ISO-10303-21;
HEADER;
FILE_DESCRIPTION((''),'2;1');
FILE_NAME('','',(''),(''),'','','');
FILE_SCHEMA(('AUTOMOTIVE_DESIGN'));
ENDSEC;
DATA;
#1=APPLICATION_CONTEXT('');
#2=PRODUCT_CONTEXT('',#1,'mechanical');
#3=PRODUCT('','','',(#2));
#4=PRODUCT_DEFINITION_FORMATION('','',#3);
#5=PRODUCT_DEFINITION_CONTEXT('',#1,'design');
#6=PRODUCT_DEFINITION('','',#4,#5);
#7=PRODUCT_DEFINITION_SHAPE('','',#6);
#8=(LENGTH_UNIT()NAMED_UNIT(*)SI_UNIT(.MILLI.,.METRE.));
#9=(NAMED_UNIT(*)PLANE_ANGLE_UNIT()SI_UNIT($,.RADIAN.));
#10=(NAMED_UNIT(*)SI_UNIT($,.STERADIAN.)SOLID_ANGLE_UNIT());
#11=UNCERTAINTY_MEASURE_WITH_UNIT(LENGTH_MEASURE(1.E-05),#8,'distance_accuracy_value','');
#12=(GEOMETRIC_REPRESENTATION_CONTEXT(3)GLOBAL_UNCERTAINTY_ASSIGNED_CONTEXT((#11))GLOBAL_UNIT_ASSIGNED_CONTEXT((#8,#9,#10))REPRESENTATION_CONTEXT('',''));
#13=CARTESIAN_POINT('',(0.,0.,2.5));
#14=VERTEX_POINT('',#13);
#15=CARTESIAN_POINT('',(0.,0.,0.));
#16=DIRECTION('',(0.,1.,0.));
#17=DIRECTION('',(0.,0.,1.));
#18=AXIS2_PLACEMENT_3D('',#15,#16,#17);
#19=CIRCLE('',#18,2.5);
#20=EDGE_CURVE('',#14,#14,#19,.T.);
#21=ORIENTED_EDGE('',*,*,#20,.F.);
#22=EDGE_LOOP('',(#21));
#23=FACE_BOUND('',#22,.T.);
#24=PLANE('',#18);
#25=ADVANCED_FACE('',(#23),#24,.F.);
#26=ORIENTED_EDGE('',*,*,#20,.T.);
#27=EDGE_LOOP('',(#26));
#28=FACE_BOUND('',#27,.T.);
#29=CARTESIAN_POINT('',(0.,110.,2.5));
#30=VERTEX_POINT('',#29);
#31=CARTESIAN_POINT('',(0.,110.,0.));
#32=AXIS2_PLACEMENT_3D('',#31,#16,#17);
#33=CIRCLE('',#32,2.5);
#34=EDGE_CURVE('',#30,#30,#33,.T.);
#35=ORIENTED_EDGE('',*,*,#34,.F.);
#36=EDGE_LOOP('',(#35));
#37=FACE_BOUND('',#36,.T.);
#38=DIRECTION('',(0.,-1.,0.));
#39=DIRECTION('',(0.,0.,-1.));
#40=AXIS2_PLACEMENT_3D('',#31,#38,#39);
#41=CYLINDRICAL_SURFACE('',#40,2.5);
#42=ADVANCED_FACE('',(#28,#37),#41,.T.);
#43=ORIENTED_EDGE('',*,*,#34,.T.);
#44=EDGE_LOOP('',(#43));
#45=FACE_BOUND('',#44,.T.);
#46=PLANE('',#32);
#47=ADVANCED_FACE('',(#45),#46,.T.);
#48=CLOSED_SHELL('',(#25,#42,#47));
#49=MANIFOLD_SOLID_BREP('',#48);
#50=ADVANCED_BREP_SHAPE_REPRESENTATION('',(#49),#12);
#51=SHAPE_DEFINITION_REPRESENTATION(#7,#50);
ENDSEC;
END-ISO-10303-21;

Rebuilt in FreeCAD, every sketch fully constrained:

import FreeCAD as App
import Part
import Sketcher

doc = App.newDocument("Part")
body = doc.addObject("PartDesign::Body", "Body")

# Sketch on XZ plane
sketch1 = body.newObject("Sketcher::SketchObject", "Sketch")
sketch1.AttachmentSupport = (doc.getObject("XZ_Plane"), [""])
sketch1.MapMode = "FlatFace"
sketch1.addGeometry(Part.Circle(App.Vector(0, 0, 0), App.Vector(0, 0, 1), 2.5), False)
sketch1.addConstraint(Sketcher.Constraint("Coincident", 0, 3, -1, 1))
sketch1.addConstraint(Sketcher.Constraint("Diameter", 0, 5.0))
pad1 = body.newObject("PartDesign::Pad", "Pad")
pad1.Profile = sketch1
pad1.Length = 110
pad1.Reversed = True

doc.recompute()
